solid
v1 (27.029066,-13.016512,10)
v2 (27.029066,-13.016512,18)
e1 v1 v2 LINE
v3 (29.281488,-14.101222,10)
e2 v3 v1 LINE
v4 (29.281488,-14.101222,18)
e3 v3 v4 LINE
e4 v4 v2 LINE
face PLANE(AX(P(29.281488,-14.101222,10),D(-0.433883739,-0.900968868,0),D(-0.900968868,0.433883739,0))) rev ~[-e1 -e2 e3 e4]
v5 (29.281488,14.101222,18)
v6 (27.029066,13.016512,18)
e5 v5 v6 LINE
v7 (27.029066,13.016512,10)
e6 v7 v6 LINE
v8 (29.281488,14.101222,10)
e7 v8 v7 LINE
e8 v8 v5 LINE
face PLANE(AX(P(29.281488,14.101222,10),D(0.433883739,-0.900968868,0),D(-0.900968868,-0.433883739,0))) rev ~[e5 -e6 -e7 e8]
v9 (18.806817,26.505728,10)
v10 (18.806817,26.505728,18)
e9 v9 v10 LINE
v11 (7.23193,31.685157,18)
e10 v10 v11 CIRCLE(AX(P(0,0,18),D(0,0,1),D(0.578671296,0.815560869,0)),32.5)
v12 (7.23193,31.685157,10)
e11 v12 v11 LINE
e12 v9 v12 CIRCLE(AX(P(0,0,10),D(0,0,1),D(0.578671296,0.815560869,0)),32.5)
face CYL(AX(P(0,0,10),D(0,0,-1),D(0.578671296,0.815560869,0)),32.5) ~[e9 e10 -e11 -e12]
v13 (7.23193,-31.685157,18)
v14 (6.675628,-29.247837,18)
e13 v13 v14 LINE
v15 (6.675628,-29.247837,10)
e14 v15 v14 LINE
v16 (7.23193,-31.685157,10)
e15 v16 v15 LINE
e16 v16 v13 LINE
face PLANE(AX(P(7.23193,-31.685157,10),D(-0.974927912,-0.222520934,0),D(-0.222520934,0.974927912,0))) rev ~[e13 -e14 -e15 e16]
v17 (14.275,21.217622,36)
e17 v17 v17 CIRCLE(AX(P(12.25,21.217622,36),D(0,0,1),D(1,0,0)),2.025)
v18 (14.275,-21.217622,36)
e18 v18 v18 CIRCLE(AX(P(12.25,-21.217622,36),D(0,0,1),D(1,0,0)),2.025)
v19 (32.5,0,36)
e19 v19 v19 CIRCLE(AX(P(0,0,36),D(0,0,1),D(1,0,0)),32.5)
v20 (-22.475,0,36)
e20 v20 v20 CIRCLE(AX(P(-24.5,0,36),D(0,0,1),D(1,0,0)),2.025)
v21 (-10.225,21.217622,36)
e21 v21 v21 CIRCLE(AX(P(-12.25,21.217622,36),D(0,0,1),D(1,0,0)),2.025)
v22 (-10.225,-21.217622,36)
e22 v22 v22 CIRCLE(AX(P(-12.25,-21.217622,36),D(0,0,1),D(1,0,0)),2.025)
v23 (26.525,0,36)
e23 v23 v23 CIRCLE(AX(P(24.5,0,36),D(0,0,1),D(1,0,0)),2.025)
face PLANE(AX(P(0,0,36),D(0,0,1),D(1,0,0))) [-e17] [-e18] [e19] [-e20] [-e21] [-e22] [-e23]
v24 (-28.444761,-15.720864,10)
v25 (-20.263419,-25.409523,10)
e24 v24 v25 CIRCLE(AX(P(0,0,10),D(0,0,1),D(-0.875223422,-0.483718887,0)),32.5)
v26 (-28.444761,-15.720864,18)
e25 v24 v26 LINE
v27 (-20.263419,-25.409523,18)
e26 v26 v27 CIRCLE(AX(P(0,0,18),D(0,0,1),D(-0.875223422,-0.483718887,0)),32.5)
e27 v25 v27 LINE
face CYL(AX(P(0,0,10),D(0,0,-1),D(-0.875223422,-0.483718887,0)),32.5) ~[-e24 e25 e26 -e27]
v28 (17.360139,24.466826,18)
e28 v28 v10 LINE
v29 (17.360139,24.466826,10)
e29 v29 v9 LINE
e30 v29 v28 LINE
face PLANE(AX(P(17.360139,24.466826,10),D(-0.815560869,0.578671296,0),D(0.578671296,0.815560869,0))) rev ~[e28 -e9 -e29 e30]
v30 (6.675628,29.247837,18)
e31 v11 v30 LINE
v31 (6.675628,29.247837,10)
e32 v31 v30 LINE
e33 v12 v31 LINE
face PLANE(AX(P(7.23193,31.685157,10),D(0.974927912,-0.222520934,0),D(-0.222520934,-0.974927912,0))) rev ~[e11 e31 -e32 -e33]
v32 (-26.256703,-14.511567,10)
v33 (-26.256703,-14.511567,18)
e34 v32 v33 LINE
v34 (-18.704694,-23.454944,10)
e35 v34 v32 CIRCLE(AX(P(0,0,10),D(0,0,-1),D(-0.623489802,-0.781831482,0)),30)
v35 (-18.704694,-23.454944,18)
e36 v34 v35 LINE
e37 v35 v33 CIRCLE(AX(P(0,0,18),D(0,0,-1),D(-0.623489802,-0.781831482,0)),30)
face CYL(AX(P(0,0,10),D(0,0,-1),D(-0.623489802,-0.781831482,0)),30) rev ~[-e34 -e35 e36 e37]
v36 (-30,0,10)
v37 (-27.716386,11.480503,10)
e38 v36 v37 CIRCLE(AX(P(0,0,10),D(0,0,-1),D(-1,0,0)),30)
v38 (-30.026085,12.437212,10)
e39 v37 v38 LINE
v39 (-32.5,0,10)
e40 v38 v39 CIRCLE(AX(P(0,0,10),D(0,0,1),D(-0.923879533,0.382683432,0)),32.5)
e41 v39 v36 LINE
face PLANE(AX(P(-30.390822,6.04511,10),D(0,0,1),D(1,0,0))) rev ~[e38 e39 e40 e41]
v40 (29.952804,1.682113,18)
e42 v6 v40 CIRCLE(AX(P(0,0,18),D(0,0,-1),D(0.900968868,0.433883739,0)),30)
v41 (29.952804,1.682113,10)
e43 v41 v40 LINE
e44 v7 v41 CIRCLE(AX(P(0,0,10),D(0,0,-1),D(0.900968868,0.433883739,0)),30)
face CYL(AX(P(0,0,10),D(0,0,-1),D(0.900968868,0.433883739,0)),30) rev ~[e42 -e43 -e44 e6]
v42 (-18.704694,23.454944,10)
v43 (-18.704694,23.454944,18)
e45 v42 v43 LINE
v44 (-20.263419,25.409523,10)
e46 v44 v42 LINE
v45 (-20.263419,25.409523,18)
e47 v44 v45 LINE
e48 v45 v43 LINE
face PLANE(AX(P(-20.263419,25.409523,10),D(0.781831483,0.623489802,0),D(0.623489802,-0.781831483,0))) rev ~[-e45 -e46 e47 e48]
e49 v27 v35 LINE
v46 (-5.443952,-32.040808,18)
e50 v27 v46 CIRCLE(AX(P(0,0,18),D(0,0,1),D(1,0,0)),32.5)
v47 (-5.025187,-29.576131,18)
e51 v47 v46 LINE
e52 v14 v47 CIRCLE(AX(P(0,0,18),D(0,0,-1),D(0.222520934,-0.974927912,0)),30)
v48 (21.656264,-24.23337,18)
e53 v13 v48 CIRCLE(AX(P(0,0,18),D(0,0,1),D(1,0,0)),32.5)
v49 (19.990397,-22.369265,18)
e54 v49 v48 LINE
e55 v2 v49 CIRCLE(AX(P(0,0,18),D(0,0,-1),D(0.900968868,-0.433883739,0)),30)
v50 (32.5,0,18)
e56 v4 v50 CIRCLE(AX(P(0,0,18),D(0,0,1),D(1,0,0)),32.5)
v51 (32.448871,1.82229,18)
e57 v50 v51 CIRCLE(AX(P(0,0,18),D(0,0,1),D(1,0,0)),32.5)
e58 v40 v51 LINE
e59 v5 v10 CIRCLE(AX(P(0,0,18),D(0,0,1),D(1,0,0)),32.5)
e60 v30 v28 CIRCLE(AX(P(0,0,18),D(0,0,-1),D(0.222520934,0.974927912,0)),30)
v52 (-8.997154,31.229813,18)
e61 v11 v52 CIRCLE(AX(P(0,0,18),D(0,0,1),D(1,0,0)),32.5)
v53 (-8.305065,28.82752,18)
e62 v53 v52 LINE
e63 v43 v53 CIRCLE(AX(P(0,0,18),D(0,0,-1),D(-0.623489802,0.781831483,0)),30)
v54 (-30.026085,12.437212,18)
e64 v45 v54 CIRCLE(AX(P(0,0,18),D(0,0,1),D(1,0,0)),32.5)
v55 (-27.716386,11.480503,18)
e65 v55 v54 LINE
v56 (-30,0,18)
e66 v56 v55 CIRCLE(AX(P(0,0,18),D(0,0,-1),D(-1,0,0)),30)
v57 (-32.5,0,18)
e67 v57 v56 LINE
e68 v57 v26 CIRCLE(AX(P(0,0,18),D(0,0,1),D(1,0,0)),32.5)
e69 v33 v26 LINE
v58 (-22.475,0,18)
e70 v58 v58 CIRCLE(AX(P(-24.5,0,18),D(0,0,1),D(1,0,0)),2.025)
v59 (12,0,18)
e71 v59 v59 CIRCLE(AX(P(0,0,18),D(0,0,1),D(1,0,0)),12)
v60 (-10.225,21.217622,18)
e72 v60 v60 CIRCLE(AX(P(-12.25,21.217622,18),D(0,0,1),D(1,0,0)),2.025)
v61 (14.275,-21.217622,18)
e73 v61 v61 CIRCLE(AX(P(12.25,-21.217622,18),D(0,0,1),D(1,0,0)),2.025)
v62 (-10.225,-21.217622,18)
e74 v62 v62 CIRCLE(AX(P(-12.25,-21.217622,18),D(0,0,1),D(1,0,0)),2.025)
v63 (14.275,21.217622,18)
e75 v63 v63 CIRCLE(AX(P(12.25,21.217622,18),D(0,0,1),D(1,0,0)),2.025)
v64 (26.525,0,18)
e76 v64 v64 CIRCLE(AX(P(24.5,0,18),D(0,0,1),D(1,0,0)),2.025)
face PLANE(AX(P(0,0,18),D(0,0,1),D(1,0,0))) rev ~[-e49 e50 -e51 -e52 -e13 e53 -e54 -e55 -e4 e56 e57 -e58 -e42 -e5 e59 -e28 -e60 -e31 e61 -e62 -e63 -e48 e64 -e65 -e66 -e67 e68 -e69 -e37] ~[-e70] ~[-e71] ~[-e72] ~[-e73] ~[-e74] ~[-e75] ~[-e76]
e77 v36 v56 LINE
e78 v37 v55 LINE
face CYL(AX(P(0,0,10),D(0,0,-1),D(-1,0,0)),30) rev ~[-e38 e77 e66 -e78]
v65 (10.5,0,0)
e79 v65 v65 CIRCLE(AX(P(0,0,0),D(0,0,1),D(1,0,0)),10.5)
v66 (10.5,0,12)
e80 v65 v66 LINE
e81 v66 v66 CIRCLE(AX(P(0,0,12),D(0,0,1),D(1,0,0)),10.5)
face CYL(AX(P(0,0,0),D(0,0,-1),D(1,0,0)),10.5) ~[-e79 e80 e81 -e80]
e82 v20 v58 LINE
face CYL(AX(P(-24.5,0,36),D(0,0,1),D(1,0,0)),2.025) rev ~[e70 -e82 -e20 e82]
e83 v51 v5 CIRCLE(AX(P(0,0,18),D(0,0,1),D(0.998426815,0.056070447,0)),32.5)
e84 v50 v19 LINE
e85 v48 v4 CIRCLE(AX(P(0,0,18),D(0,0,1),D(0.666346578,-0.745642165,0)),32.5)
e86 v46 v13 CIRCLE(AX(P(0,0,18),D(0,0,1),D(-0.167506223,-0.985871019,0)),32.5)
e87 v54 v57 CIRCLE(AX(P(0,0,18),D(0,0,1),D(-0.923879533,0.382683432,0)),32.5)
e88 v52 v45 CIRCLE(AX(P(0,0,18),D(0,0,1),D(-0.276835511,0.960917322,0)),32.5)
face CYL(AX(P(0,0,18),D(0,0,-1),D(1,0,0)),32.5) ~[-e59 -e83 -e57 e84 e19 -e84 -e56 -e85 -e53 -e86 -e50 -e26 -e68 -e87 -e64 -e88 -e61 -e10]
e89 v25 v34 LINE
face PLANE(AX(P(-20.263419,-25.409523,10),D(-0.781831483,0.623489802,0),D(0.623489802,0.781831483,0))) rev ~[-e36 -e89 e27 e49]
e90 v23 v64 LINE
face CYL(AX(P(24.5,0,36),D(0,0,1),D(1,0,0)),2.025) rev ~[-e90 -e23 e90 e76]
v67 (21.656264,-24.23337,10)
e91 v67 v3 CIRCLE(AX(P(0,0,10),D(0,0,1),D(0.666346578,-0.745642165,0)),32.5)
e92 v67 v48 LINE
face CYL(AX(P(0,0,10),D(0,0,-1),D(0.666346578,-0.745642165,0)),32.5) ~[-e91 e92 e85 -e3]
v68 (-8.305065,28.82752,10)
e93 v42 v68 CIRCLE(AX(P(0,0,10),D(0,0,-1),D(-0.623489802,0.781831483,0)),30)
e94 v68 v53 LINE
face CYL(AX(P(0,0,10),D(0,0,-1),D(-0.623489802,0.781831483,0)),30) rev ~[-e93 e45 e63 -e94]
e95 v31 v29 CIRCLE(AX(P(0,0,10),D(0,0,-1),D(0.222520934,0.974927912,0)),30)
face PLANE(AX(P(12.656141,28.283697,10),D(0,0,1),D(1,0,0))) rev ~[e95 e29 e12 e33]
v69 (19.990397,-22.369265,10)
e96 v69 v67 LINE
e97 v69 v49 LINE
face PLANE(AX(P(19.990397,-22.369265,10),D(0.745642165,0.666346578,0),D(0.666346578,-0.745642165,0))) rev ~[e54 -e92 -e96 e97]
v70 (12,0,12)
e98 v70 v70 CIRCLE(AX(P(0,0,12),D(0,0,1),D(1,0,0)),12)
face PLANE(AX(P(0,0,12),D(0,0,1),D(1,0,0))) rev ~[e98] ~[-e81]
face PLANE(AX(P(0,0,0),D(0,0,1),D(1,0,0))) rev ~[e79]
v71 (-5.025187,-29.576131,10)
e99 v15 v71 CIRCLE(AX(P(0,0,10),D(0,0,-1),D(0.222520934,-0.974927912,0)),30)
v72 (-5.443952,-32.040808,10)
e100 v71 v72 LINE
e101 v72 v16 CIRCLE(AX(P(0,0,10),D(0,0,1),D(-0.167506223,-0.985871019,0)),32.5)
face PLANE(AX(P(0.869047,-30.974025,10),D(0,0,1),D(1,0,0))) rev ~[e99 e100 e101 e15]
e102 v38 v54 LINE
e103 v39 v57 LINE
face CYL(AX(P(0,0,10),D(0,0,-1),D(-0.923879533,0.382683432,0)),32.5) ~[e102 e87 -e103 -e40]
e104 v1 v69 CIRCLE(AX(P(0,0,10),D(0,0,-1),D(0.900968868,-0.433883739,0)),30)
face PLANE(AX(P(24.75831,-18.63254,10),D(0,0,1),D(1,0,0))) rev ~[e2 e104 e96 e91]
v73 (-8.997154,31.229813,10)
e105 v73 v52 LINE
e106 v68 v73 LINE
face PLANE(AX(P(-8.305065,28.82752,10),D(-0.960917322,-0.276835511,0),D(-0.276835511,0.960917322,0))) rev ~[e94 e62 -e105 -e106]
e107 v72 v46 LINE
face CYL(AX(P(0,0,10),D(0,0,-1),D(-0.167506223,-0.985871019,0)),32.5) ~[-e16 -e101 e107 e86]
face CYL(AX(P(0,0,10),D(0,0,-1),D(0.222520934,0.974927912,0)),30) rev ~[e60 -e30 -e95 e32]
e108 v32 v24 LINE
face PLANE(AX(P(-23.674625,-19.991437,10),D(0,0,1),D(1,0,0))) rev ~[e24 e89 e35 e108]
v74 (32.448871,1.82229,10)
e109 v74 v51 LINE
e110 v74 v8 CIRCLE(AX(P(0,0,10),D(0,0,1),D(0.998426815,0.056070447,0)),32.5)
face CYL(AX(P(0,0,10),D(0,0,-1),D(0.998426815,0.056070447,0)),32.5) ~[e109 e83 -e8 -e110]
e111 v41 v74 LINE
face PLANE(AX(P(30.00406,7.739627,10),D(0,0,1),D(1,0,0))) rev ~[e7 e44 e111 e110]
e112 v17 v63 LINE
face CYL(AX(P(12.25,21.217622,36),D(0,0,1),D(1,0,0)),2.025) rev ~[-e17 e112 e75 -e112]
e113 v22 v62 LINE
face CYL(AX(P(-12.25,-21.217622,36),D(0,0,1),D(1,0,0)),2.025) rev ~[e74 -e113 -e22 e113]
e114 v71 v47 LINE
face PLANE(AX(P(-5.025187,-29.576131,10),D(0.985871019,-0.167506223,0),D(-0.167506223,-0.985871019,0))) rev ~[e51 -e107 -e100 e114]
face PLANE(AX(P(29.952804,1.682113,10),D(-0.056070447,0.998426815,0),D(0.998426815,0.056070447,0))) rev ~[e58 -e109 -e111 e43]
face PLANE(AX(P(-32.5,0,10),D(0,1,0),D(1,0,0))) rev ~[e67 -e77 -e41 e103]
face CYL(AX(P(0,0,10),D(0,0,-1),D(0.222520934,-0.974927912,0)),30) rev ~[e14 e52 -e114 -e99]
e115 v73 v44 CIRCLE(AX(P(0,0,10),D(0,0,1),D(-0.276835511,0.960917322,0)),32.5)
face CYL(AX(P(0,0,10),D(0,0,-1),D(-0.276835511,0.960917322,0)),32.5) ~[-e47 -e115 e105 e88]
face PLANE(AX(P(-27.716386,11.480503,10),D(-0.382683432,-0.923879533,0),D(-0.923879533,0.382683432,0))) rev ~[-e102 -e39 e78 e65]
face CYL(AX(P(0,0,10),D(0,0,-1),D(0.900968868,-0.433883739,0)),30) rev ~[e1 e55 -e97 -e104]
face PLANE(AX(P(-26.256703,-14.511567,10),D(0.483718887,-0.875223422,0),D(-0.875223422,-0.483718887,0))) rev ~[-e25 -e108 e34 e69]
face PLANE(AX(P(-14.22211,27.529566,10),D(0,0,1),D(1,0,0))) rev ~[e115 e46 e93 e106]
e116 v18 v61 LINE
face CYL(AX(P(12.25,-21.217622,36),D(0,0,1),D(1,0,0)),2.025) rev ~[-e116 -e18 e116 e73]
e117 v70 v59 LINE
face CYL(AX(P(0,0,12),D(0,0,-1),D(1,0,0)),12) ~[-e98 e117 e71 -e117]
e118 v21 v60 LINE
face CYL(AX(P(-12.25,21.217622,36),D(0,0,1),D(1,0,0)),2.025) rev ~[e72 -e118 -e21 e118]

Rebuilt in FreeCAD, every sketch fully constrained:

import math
import FreeCAD as App
import Part
import Sketcher
Q = App.Units.Quantity

doc = App.newDocument("Part")
body = doc.addObject("PartDesign::Body", "Body")

sketch1 = doc.addObject("Sketcher::SketchObject", "Sketch")
body.addObject(sketch1)
sketch1.AttachmentSupport = (doc.XY_Plane, [""])
sketch1.MapMode = "FlatFace"
sketch1.addGeometry(Part.Circle(App.Vector(0, 0, 0), App.Vector(0, 0, 1), 10), False)
sketch1.addConstraint([
    Sketcher.Constraint("Coincident", 0, 3, -1, 1),
    Sketcher.Constraint("Diameter", 0, 21.0),
])
pad1 = doc.addObject("PartDesign::Pad", "Pad")
body.addObject(pad1)
pad1.Profile = sketch1
pad1.Length = 12

sketch2 = doc.addObject("Sketcher::SketchObject", "Sketch001")
body.addObject(sketch2)
sketch2.AttachmentSupport = (doc.XY_Plane, [""])
sketch2.MapMode = "FlatFace"
sketch2.AttachmentOffset = App.Placement(App.Vector(0, 0, 12), App.Rotation())
sketch2.addGeometry(Part.Circle(App.Vector(0, 0, 0), App.Vector(0, 0, 1), 12), False)
sketch2.addConstraint([
    Sketcher.Constraint("Coincident", 0, 3, -1, 1),
    Sketcher.Constraint("Diameter", 0, 24.0),
])
pad2 = doc.addObject("PartDesign::Pad", "Pad001")
body.addObject(pad2)
pad2.Profile = sketch2
pad2.Length = 6

sketch3 = doc.addObject("Sketcher::SketchObject", "Sketch002")
body.addObject(sketch3)
sketch3.AttachmentSupport = (doc.XY_Plane, [""])
sketch3.MapMode = "FlatFace"
sketch3.AttachmentOffset = App.Placement(App.Vector(0, 0, 18), App.Rotation())
sketch3.addGeometry(Part.Circle(App.Vector(0, 0, 0), App.Vector(0, 0, 1), 32), False)
sketch3.addConstraint([
    Sketcher.Constraint("Coincident", 0, 3, -1, 1),
    Sketcher.Constraint("Diameter", 0, 65.0),
])
pad3 = doc.addObject("PartDesign::Pad", "Pad002")
body.addObject(pad3)
pad3.Profile = sketch3
pad3.Length = 18

sketch4 = doc.addObject("Sketcher::SketchObject", "Sketch003")
body.addObject(sketch4)
sketch4.AttachmentSupport = (doc.XY_Plane, [""])
sketch4.MapMode = "FlatFace"
sketch4.AttachmentOffset = App.Placement(App.Vector(0, 0, 36), App.Rotation())
sketch4.addGeometry([
    Part.Circle(App.Vector(24.5, 0, 0), App.Vector(0, 0, 1), 2),
    Part.Circle(App.Vector(12.2, -21.2, 0), App.Vector(0, 0, 1), 2),
    Part.Circle(App.Vector(-12.2, -21.2, 0), App.Vector(0, 0, 1), 2),
    Part.Circle(App.Vector(-24.5, 0, 0), App.Vector(0, 0, 1), 2),
    Part.Circle(App.Vector(-12.2, 21.2, 0), App.Vector(0, 0, 1), 2),
    Part.Circle(App.Vector(12.2, 21.2, 0), App.Vector(0, 0, 1), 2),
], False)
sketch4.addConstraint([
    Sketcher.Constraint("Equal", 0, 1),
    Sketcher.Constraint("Equal", 1, 2),
    Sketcher.Constraint("Equal", 2, 3),
    Sketcher.Constraint("Equal", 3, 4),
    Sketcher.Constraint("Equal", 4, 5),
    Sketcher.Constraint("Symmetric", 0, 3, 3, 3, -1, 1),
    Sketcher.Constraint("Symmetric", 1, 3, 4, 3, -1, 1),
    Sketcher.Constraint("Symmetric", 2, 3, 5, 3, -1, 1),
    Sketcher.Constraint("Symmetric", 1, 3, 2, 3, -2),
    Sketcher.Constraint("PointOnObject", 0, 3, -1),
    Sketcher.Constraint("Diameter", 0, 4.05),
    Sketcher.Constraint("DistanceX", 3, 3, 0, 3, 49.0),
    Sketcher.Constraint("DistanceX", 2, 3, 1, 3, 24.5),
    Sketcher.Constraint("DistanceY", 1, 3, -1, 1, 21.217622),
])
pocket1 = doc.addObject("PartDesign::Pocket", "Pocket")
body.addObject(pocket1)
pocket1.Profile = sketch4
pocket1.Type = "ThroughAll"

sketch5 = doc.addObject("Sketcher::SketchObject", "Sketch004")
body.addObject(sketch5)
sketch5.AttachmentSupport = (doc.XY_Plane, [""])
sketch5.MapMode = "FlatFace"
sketch5.AttachmentOffset = App.Placement(App.Vector(0, 0, 10), App.Rotation())
sketch5.addGeometry([
    Part.LineSegment(App.Vector(-30, 12.4, 0), App.Vector(-27.7, 11.5, 0)),
    Part.ArcOfCircle(Part.Circle(App.Vector(0, 0, 0), App.Vector(0, 0, 1), 30), math.radians(157), math.radians(180)),
    Part.LineSegment(App.Vector(-30, 0, 0), App.Vector(-32.5, 0, 0)),
    Part.ArcOfCircle(Part.Circle(App.Vector(0, 0, 0), App.Vector(0, 0, 1), 32.5), math.radians(158), math.radians(180)),
    Part.LineSegment(App.Vector(-28.4, -15.7, 0), App.Vector(-26.3, -14.5, 0)),
    Part.ArcOfCircle(Part.Circle(App.Vector(0, 0, 0), App.Vector(0, 0, 1), 30), math.radians(-151), math.radians(-129)),
    Part.LineSegment(App.Vector(-18.7, -23.5, 0), App.Vector(-20.3, -25.4, 0)),
    Part.ArcOfCircle(Part.Circle(App.Vector(0, 0, 0), App.Vector(0, 0, 1), 32.5), math.radians(-151), math.radians(-129)),
    Part.LineSegment(App.Vector(-5.4, -32, 0), App.Vector(-5, -29.6, 0)),
    Part.ArcOfCircle(Part.Circle(App.Vector(0, 0, 0), App.Vector(0, 0, 1), 30), math.radians(-100), math.radians(-77)),
    Part.LineSegment(App.Vector(6.7, -29.2, 0), App.Vector(7.2, -31.7, 0)),
    Part.ArcOfCircle(Part.Circle(App.Vector(0, 0, 0), App.Vector(0, 0, 1), 32.5), math.radians(-100), math.radians(-77)),
    Part.LineSegment(App.Vector(21.7, -24.2, 0), App.Vector(20, -22.4, 0)),
    Part.ArcOfCircle(Part.Circle(App.Vector(0, 0, 0), App.Vector(0, 0, 1), 30), math.radians(-48), math.radians(-26)),
    Part.LineSegment(App.Vector(27, -13, 0), App.Vector(29.3, -14.1, 0)),
    Part.ArcOfCircle(Part.Circle(App.Vector(0, 0, 0), App.Vector(0, 0, 1), 32.5), math.radians(-48), math.radians(-26)),
    Part.LineSegment(App.Vector(32.4, 1.8, 0), App.Vector(30, 1.7, 0)),
    Part.ArcOfCircle(Part.Circle(App.Vector(0, 0, 0), App.Vector(0, 0, 1), 30), math.radians(3), math.radians(26)),
    Part.LineSegment(App.Vector(27, 13, 0), App.Vector(29.3, 14.1, 0)),
    Part.ArcOfCircle(Part.Circle(App.Vector(0, 0, 0), App.Vector(0, 0, 1), 32.5), math.radians(3), math.radians(26)),
    Part.LineSegment(App.Vector(18.8, 26.5, 0), App.Vector(17.4, 24.5, 0)),
    Part.ArcOfCircle(Part.Circle(App.Vector(0, 0, 0), App.Vector(0, 0, 1), 30), math.radians(55), math.radians(77)),
    Part.LineSegment(App.Vector(6.7, 29.2, 0), App.Vector(7.2, 31.7, 0)),
    Part.ArcOfCircle(Part.Circle(App.Vector(0, 0, 0), App.Vector(0, 0, 1), 32.5), math.radians(55), math.radians(77)),
    Part.LineSegment(App.Vector(-9, 31.2, 0), App.Vector(-8.3, 28.8, 0)),
    Part.ArcOfCircle(Part.Circle(App.Vector(0, 0, 0), App.Vector(0, 0, 1), 30), math.radians(106), math.radians(129)),
    Part.LineSegment(App.Vector(-18.7, 23.5, 0), App.Vector(-20.3, 25.4, 0)),
    Part.ArcOfCircle(Part.Circle(App.Vector(0, 0, 0), App.Vector(0, 0, 1), 32.5), math.radians(106), math.radians(129)),
], False)
sketch5.addConstraint([
    Sketcher.Constraint("Coincident", 0, 2, 1, 1),
    Sketcher.Constraint("Coincident", 1, 2, 2, 1),
    Sketcher.Constraint("Coincident", 2, 2, 3, 2),
    Sketcher.Constraint("Coincident", 3, 1, 0, 1),
    Sketcher.Constraint("Coincident", 4, 2, 5, 1),
    Sketcher.Constraint("Coincident", 5, 2, 6, 1),
    Sketcher.Constraint("Coincident", 6, 2, 7, 2),
    Sketcher.Constraint("Coincident", 7, 1, 4, 1),
    Sketcher.Constraint("Coincident", 8, 2, 9, 1),
    Sketcher.Constraint("Coincident", 9, 2, 10, 1),
    Sketcher.Constraint("Coincident", 10, 2, 11, 2),
    Sketcher.Constraint("Coincident", 11, 1, 8, 1),
    Sketcher.Constraint("Coincident", 12, 2, 13, 1),
    Sketcher.Constraint("Coincident", 13, 2, 14, 1),
    Sketcher.Constraint("Coincident", 14, 2, 15, 2),
    Sketcher.Constraint("Coincident", 15, 1, 12, 1),
    Sketcher.Constraint("Coincident", 16, 2, 17, 1),
    Sketcher.Constraint("Coincident", 17, 2, 18, 1),
    Sketcher.Constraint("Coincident", 18, 2, 19, 2),
    Sketcher.Constraint("Coincident", 19, 1, 16, 1),
    Sketcher.Constraint("Coincident", 20, 2, 21, 1),
    Sketcher.Constraint("Coincident", 21, 2, 22, 1),
    Sketcher.Constraint("Coincident", 22, 2, 23, 2),
    Sketcher.Constraint("Coincident", 23, 1, 20, 1),
    Sketcher.Constraint("Coincident", 24, 2, 25, 1),
    Sketcher.Constraint("Coincident", 25, 2, 26, 1),
    Sketcher.Constraint("Coincident", 26, 2, 27, 2),
    Sketcher.Constraint("Coincident", 27, 1, 24, 1),
    Sketcher.Constraint("Horizontal", 2),
    Sketcher.Constraint("Coincident", 1, 3, -1, 1),
    Sketcher.Constraint("Coincident", 3, 3, -1, 1),
    Sketcher.Constraint("Coincident", 5, 3, -1, 1),
    Sketcher.Constraint("Coincident", 7, 3, -1, 1),
    Sketcher.Constraint("Coincident", 9, 3, -1, 1),
    Sketcher.Constraint("Coincident", 11, 3, -1, 1),
    Sketcher.Constraint("Coincident", 13, 3, -1, 1),
    Sketcher.Constraint("Coincident", 15, 3, -1, 1),
    Sketcher.Constraint("Coincident", 17, 3, -1, 1),
    Sketcher.Constraint("Coincident", 19, 3, -1, 1),
    Sketcher.Constraint("Coincident", 21, 3, -1, 1),
    Sketcher.Constraint("Coincident", 23, 3, -1, 1),
    Sketcher.Constraint("Coincident", 25, 3, -1, 1),
    Sketcher.Constraint("Coincident", 27, 3, -1, 1),
    Sketcher.Constraint("Equal", 1, 5),
    Sketcher.Constraint("Equal", 3, 7),
    Sketcher.Constraint("Equal", 5, 9),
    Sketcher.Constraint("Equal", 7, 11),
    Sketcher.Constraint("Equal", 9, 13),
    Sketcher.Constraint("Equal", 11, 15),
    Sketcher.Constraint("Equal", 13, 17),
    Sketcher.Constraint("Equal", 15, 19),
    Sketcher.Constraint("Equal", 17, 21),
    Sketcher.Constraint("Equal", 19, 23),
    Sketcher.Constraint("Equal", 21, 25),
    Sketcher.Constraint("Equal", 23, 27),
    Sketcher.Constraint("PointOnObject", 1, 2, -1),
    Sketcher.Constraint("Vertical", 13, 2, 17, 2),
    Sketcher.Constraint("Vertical", 14, 2, 18, 2),
    Sketcher.Constraint("Vertical", 9, 2, 21, 2),
    Sketcher.Constraint("Vertical", 10, 2, 22, 2),
    Sketcher.Constraint("Vertical", 5, 2, 25, 2),
    Sketcher.Constraint("Vertical", 6, 2, 26, 2),
    Sketcher.Constraint("Radius", 1, 30.0),
    Sketcher.Constraint("Radius", 3, 32.5),
    Sketcher.Constraint("Angle", 0, Q("-22.5 deg")),
    Sketcher.Constraint("DistanceY", 16, 2, 17, 2, 11.334399),
    Sketcher.Constraint("DistanceY", 13, 2, 19, 1, 14.838802),
    Sketcher.Constraint("DistanceY", -1, 1, 3, 1, 12.437212),
    Sketcher.Constraint("DistanceX", 6, 2, -1, 1, 20.263419),
    Sketcher.Constraint("DistanceX", 7, 1, -1, 1, 28.444761),
    Sketcher.Constraint("DistanceY", 8, 2, -1, 1, 29.576131),
    Sketcher.Constraint("DistanceX", -1, 1, 9, 2, 6.675628),
    Sketcher.Constraint("DistanceX", -1, 1, 10, 2, 7.23193),
    Sketcher.Constraint("DistanceY", 11, 1, -1, 1, 32.040808),
    Sketcher.Constraint("DistanceX", -1, 1, 14, 2, 29.281488),
    Sketcher.Constraint("DistanceY", 15, 1, -1, 1, 24.23337),
    Sketcher.Constraint("DistanceX", -1, 1, 19, 1, 32.448871),
    Sketcher.Constraint("DistanceX", -1, 1, 20, 2, 17.360139),
    Sketcher.Constraint("DistanceY", -1, 1, 23, 1, 26.505728),
    Sketcher.Constraint("DistanceY", -1, 1, 24, 2, 28.82752),
    Sketcher.Constraint("DistanceY", 4, 2, 0, 2, 25.99207),
    Sketcher.Constraint("DistanceX", 4, 2, 5, 2, 7.552009),
    Sketcher.Constraint("DistanceX", 9, 2, 12, 2, 13.314769),
    Sketcher.Constraint("DistanceX", 27, 1, 24, 2, 0.692089),
])
pad4 = doc.addObject("PartDesign::Pad", "Pad003")
body.addObject(pad4)
pad4.Profile = sketch5
pad4.Length = 8

doc.recompute()
